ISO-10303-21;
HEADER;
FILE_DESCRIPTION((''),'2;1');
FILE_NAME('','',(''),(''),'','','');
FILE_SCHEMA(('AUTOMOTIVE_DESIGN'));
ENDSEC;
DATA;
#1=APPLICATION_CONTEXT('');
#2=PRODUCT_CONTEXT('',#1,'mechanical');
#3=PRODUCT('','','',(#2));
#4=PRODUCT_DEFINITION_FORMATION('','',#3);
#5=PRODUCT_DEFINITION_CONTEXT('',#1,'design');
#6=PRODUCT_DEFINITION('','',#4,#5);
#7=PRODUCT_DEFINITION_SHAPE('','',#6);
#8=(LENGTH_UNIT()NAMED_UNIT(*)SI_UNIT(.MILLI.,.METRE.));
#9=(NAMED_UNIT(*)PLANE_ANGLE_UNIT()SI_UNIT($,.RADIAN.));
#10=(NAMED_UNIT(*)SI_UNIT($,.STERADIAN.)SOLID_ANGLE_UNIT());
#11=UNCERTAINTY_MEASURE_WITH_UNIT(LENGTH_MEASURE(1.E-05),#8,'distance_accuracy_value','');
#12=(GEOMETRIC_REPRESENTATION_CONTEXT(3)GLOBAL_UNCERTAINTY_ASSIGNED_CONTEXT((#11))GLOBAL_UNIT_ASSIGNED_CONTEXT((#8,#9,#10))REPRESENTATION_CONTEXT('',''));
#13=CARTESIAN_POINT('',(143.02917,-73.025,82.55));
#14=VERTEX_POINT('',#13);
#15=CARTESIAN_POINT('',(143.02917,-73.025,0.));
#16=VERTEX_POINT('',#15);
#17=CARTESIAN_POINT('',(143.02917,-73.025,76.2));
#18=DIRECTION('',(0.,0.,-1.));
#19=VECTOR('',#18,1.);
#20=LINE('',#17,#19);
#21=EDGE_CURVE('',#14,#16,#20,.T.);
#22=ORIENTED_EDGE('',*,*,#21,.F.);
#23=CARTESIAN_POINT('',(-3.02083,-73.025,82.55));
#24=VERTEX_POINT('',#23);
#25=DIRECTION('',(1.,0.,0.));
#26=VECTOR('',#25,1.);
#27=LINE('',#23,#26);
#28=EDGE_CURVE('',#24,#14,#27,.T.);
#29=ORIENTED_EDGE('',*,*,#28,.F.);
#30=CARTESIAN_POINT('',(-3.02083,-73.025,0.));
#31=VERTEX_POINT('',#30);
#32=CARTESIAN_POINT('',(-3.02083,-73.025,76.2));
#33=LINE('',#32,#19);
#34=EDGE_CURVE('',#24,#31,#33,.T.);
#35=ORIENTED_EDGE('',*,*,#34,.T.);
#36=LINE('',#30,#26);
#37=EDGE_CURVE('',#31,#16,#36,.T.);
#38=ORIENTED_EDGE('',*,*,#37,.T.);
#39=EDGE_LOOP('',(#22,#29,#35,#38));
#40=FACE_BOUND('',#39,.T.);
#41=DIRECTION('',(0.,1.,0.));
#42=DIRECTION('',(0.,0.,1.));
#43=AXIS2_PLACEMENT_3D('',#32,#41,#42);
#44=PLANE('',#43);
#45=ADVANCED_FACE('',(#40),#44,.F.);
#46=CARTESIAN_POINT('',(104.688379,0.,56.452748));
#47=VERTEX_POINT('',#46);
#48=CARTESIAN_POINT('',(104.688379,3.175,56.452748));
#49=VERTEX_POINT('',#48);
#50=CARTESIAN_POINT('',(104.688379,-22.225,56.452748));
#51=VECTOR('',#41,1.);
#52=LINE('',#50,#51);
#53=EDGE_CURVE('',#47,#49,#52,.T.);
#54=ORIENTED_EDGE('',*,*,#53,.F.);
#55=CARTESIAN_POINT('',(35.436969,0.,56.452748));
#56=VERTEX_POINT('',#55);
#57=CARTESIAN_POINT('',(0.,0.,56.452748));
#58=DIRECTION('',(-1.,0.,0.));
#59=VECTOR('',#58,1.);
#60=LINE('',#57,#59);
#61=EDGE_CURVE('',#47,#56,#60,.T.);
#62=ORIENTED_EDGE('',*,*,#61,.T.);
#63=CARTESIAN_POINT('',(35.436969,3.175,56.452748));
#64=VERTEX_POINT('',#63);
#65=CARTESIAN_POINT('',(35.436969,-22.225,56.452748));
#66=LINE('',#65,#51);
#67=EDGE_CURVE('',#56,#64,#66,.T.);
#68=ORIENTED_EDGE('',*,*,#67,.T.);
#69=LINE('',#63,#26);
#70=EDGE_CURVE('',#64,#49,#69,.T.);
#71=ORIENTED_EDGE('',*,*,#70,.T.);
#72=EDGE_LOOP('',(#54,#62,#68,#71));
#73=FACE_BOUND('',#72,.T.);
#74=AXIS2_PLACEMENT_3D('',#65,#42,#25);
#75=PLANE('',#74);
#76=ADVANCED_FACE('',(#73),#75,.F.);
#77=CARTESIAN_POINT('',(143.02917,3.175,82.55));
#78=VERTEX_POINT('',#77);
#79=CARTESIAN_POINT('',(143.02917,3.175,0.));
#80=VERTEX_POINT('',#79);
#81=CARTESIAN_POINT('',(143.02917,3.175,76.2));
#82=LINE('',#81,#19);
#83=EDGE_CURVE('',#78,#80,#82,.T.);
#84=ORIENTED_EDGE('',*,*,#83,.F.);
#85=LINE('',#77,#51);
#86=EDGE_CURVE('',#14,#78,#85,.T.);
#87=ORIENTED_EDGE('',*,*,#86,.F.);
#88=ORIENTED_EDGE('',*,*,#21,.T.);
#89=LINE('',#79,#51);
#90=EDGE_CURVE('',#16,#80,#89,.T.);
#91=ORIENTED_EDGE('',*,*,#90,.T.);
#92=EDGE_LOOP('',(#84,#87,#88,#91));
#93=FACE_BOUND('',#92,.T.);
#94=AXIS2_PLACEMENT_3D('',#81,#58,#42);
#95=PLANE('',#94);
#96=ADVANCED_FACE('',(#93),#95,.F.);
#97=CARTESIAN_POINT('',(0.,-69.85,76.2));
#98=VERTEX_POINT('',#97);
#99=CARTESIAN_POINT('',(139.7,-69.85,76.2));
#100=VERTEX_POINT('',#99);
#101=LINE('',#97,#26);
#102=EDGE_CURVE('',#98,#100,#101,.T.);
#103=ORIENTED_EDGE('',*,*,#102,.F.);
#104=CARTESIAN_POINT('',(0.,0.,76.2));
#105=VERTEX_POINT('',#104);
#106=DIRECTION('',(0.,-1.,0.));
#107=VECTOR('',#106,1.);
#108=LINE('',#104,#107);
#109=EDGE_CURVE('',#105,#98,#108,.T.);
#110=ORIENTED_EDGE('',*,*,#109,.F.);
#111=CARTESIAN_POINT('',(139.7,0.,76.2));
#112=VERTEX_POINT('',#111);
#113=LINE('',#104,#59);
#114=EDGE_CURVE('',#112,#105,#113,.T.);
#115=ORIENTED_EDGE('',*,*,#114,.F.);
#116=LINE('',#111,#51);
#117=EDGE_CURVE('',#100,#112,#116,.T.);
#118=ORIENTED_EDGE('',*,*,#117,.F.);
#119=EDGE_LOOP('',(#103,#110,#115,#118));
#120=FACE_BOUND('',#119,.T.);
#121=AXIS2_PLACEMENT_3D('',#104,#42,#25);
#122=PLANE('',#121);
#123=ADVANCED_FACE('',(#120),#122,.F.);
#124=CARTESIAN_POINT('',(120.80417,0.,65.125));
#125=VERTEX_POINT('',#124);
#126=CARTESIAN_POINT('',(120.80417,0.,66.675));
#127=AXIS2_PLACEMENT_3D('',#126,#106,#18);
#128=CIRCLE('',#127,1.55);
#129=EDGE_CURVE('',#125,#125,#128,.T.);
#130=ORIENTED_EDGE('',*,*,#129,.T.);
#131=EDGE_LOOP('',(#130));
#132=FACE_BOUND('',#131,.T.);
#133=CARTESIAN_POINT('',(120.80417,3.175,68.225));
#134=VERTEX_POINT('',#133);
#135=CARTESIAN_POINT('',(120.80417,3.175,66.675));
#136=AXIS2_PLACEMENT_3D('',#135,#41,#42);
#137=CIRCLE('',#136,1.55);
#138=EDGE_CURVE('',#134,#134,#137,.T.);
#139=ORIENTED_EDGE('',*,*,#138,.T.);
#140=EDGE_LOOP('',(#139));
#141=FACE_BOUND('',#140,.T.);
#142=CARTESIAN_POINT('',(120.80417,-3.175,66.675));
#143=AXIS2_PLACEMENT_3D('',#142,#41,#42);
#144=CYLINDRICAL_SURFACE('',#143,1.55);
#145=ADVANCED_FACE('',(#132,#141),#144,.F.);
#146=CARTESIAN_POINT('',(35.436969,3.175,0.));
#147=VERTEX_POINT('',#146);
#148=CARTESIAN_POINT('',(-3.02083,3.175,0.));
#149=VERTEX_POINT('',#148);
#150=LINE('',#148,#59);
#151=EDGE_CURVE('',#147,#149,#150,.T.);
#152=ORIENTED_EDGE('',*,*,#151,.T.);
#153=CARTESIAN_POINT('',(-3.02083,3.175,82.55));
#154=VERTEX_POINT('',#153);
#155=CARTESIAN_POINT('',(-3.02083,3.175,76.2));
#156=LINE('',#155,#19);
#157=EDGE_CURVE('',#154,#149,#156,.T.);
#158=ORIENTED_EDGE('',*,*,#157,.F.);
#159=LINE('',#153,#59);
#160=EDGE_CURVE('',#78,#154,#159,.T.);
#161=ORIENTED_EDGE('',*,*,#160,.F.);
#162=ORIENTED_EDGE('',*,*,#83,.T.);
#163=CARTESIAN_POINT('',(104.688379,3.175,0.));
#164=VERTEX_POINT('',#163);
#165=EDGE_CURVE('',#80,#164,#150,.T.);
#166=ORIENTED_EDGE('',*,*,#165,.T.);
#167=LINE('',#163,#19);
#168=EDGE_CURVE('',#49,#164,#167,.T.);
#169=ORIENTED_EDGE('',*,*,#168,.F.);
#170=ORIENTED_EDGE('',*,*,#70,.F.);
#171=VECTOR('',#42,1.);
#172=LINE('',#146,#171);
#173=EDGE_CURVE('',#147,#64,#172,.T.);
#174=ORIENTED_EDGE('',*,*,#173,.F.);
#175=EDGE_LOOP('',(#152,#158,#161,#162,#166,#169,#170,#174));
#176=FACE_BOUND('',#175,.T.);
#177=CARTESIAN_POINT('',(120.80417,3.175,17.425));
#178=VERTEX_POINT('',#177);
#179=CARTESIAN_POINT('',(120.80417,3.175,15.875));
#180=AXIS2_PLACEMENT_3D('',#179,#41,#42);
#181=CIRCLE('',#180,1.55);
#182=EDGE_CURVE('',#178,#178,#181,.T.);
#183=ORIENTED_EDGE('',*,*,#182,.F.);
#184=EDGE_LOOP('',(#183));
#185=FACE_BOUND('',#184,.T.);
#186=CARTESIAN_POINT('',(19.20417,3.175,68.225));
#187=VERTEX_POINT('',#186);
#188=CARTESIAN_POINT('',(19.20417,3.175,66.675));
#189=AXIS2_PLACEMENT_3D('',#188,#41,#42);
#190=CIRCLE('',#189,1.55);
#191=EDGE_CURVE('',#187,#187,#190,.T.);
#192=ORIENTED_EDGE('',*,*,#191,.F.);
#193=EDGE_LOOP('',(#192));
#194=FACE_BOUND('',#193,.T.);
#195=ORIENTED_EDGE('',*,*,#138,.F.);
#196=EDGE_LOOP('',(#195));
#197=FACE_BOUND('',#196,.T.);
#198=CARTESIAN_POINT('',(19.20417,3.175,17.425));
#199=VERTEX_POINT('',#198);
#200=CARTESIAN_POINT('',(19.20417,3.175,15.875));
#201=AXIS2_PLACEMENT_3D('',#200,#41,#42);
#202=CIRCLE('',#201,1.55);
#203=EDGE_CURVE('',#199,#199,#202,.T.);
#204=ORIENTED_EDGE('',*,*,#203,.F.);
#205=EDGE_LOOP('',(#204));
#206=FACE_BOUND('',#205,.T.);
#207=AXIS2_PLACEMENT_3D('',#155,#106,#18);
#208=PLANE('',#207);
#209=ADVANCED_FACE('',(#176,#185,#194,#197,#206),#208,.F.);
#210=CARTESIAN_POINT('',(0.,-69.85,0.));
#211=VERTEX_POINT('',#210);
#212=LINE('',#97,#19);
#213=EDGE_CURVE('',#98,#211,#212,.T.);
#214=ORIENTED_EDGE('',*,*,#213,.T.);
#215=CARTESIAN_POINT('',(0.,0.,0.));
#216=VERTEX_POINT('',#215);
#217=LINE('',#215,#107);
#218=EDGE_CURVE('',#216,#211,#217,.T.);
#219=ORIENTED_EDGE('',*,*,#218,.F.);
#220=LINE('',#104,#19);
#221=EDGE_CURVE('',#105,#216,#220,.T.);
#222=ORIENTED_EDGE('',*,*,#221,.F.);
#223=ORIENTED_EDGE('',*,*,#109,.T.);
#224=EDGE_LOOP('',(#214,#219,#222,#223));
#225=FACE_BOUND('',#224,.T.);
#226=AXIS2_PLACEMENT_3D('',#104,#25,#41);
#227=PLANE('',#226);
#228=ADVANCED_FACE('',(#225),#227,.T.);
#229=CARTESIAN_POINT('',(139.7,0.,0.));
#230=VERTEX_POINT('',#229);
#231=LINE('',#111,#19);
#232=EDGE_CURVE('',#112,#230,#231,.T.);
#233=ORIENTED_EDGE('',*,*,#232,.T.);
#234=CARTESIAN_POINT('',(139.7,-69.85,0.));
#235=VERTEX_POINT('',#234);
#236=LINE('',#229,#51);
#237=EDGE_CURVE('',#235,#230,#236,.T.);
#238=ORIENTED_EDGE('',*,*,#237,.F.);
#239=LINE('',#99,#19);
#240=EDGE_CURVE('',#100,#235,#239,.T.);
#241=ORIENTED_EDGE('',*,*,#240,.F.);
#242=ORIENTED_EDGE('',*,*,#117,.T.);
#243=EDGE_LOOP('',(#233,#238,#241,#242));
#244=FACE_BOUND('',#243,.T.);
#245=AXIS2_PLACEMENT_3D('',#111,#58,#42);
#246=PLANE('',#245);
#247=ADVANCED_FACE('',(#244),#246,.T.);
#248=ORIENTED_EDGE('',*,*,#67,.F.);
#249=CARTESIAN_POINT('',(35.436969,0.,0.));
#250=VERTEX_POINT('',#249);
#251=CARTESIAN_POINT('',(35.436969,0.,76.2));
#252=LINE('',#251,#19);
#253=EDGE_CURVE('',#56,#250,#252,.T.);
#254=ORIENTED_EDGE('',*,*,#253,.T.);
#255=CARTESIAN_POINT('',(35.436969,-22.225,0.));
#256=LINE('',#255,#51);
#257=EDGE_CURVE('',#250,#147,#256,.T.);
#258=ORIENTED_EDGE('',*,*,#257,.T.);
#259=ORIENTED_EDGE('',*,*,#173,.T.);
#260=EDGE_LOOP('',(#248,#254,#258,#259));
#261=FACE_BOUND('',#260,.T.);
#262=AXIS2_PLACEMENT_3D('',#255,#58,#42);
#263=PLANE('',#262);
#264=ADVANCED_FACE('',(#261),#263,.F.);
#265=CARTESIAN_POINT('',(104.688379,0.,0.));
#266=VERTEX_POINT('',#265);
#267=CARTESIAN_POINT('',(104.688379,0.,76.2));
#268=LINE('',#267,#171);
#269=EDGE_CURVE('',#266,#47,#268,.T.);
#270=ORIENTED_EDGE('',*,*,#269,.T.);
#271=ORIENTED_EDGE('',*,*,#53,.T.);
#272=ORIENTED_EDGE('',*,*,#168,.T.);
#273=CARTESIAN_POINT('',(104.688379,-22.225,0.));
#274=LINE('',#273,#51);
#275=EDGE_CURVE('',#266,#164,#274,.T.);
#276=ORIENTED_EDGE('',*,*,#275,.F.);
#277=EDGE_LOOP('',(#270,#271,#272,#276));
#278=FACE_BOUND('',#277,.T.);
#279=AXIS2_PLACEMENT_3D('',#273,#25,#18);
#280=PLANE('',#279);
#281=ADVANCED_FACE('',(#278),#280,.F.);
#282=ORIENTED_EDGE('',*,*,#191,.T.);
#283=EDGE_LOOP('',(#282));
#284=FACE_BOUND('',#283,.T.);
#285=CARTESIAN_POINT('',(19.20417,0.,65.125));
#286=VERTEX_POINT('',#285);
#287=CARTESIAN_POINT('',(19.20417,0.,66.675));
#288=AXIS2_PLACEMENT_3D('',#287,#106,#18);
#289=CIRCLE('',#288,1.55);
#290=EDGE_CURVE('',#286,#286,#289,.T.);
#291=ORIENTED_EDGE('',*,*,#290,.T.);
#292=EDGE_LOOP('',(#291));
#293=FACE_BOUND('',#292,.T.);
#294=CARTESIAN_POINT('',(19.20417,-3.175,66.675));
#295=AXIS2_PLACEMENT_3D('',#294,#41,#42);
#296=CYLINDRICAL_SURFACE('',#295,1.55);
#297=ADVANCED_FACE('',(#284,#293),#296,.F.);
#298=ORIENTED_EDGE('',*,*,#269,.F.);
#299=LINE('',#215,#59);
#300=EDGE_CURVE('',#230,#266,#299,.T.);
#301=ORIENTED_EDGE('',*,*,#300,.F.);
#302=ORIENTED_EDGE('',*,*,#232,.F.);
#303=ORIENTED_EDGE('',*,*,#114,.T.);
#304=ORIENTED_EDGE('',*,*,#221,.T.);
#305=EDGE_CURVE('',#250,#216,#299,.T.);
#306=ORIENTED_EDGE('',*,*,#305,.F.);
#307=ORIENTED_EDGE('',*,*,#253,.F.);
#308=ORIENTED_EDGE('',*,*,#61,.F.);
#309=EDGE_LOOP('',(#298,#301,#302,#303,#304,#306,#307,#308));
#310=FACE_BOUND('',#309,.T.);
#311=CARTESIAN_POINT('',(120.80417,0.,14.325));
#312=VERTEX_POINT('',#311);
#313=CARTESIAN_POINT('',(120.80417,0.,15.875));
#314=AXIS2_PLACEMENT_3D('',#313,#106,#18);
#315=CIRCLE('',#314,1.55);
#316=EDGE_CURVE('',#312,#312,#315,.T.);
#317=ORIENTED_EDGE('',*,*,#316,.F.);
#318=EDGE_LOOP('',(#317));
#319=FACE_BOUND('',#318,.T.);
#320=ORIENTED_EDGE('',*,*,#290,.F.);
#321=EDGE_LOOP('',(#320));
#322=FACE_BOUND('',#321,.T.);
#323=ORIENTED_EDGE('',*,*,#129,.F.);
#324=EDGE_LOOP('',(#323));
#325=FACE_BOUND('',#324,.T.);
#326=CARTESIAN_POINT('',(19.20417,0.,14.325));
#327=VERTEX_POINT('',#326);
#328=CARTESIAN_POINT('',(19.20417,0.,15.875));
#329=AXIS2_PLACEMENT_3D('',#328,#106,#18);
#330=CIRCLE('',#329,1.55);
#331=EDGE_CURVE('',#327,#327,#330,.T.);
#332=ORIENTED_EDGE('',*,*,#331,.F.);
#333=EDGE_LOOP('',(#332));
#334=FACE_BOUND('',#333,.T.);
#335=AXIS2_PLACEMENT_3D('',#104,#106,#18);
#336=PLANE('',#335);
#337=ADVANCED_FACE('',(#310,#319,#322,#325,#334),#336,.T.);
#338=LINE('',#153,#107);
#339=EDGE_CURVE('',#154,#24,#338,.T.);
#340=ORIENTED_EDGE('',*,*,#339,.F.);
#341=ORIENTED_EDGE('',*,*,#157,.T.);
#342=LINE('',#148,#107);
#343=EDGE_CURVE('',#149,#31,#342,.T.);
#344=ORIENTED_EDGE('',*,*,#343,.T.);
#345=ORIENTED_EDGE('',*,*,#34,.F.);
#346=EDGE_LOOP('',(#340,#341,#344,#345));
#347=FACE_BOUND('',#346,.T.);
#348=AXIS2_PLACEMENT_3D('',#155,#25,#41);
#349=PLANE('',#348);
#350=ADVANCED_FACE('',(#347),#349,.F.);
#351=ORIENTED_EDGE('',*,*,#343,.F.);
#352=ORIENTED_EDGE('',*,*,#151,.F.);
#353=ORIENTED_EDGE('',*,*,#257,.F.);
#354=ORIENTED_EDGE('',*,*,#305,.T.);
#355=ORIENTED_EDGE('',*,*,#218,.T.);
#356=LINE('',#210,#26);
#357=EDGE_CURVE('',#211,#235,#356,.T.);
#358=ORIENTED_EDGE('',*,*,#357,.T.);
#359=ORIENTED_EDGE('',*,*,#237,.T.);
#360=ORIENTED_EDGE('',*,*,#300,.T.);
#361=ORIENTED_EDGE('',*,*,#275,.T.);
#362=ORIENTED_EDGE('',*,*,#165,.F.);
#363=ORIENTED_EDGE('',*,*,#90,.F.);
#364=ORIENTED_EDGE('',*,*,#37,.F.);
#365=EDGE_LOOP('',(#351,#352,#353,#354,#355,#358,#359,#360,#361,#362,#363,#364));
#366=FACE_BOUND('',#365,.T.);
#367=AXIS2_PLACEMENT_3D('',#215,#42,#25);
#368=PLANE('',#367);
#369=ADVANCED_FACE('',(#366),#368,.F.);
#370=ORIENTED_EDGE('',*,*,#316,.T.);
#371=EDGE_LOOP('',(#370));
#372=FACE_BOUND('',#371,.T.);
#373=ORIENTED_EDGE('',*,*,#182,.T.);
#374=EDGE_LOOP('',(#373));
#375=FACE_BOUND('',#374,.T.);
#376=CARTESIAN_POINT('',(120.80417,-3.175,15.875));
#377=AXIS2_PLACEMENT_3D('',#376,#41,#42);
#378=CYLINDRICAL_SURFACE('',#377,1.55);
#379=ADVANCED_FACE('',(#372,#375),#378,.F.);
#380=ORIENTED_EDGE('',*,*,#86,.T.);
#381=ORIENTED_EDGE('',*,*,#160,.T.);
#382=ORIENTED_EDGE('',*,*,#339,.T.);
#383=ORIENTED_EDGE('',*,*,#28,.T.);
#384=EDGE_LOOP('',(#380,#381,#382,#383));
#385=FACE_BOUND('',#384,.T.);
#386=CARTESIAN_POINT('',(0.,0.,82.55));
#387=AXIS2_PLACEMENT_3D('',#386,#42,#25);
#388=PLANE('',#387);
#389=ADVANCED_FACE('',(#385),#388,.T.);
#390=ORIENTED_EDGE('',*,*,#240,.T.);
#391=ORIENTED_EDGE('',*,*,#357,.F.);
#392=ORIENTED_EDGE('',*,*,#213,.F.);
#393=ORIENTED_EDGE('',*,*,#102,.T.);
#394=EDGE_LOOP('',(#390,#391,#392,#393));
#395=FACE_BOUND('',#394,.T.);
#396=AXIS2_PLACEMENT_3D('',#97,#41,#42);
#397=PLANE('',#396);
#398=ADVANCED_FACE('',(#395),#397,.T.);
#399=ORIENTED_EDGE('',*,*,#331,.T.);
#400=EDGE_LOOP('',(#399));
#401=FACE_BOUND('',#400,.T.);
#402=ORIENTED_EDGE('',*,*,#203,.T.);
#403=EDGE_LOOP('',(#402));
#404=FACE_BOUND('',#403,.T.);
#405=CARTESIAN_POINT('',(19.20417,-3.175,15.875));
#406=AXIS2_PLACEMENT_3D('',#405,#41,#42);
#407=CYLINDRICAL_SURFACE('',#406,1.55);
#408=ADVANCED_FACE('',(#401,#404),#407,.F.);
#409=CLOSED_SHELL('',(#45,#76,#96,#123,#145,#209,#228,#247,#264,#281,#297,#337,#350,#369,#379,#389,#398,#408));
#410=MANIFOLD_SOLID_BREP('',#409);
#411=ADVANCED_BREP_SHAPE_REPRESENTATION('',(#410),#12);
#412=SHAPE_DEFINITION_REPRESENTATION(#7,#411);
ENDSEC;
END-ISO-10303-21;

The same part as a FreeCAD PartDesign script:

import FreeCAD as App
import Part
import Sketcher

V = App.Vector
Q = App.Units.Quantity


def add_polygon(sketch, points):
    """Adds a closed chain of lines whose ends are joined by coincident constraints."""
    first, n = sketch.GeometryCount, len(points)
    for a, b in zip(points, points[1:] + points[:1]):
        sketch.addGeometry(Part.LineSegment(App.Vector(*a, 0), App.Vector(*b, 0)), False)
    for i in range(n):
        sketch.addConstraint(Sketcher.Constraint("Coincident", first + i, 2, first + (i + 1) % n, 1))

doc = App.newDocument("Part")
body = doc.addObject("PartDesign::Body", "Body")

# Sketch on XY plane
sketch1 = doc.addObject("Sketcher::SketchObject", "Sketch")
body.addObject(sketch1)
sketch1.AttachmentSupport = (doc.XY_Plane, [""])
sketch1.MapMode = "FlatFace"
add_polygon(sketch1, [(-3, 3), (-3, -73), (143, -73), (143, 3)])  # lines 0-3
add_polygon(sketch1, [(140, -70), (0, -70), (0, 0), (140, 0)])  # lines 4-7
sketch1.addConstraint(Sketcher.Constraint("Vertical", 0))
sketch1.addConstraint(Sketcher.Constraint("Horizontal", 1))
sketch1.addConstraint(Sketcher.Constraint("Vertical", 2))
sketch1.addConstraint(Sketcher.Constraint("Horizontal", 3))
sketch1.addConstraint(Sketcher.Constraint("Horizontal", 4))
sketch1.addConstraint(Sketcher.Constraint("Vertical", 5))
sketch1.addConstraint(Sketcher.Constraint("Horizontal", 6))
sketch1.addConstraint(Sketcher.Constraint("Vertical", 7))
sketch1.addConstraint(Sketcher.Constraint("Coincident", 5, 2, -1, 1))
sketch1.addConstraint(Sketcher.Constraint("DistanceY", 0, 2, 0, 1, Q("3 in")))
sketch1.addConstraint(Sketcher.Constraint("DistanceX", 4, 2, 4, 1, Q("5.5 in")))
sketch1.addConstraint(Sketcher.Constraint("DistanceX", 1, 1, 1, 2, Q("5.75 in")))
sketch1.addConstraint(Sketcher.Constraint("DistanceY", 5, 1, 5, 2, Q("2.75 in")))
sketch1.addConstraint(Sketcher.Constraint("DistanceY", 0, 2, -1, 1, Q("2.875 in")))
sketch1.addConstraint(Sketcher.Constraint("DistanceX", 0, 2, -1, 1, Q("3.02083 mm")))
pad1 = doc.addObject("PartDesign::Pad", "Pad")
body.addObject(pad1)
pad1.Profile = sketch1
pad1.Length = Q("3 in")

# Sketch on XY plane
sketch2 = doc.addObject("Sketcher::SketchObject", "Sketch001")
body.addObject(sketch2)
sketch2.AttachmentSupport = (doc.XY_Plane, [""])
sketch2.MapMode = "FlatFace"
sketch2.AttachmentOffset = App.Placement(V(0, 0, 3 * 25.4), App.Rotation())
add_polygon(sketch2, [(-3, 3), (-3, -73), (143, -73), (143, 3)])  # lines 0-3
sketch2.addConstraint(Sketcher.Constraint("Vertical", 0))
sketch2.addConstraint(Sketcher.Constraint("Horizontal", 1))
sketch2.addConstraint(Sketcher.Constraint("Vertical", 2))
sketch2.addConstraint(Sketcher.Constraint("Horizontal", 3))
sketch2.addConstraint(Sketcher.Constraint("DistanceY", 0, 2, 0, 1, Q("3 in")))
sketch2.addConstraint(Sketcher.Constraint("DistanceX", 1, 1, 1, 2, Q("5.75 in")))
sketch2.addConstraint(Sketcher.Constraint("DistanceY", 0, 2, -1, 1, Q("2.875 in")))
sketch2.addConstraint(Sketcher.Constraint("DistanceX", 0, 2, -1, 1, Q("3.02083 mm")))
pad2 = doc.addObject("PartDesign::Pad", "Pad001")
body.addObject(pad2)
pad2.Profile = sketch2
pad2.Length = Q("0.25 in")

# Sketch on XZ plane
sketch3 = doc.addObject("Sketcher::SketchObject", "Sketch002")
body.addObject(sketch3)
sketch3.AttachmentSupport = (doc.XZ_Plane, [""])
sketch3.MapMode = "FlatFace"
sketch3.AttachmentOffset = App.Placement(V(0, 0, -0.125 * 25.4), App.Rotation())
sketch3.addGeometry(Part.Circle(V(19.2, 15.9, 0), V(0, 0, 1), 1.6), False)
sketch3.addGeometry(Part.Circle(V(120.8, 15.9, 0), V(0, 0, 1), 1.6), False)
sketch3.addGeometry(Part.Circle(V(120.8, 66.7, 0), V(0, 0, 1), 1.6), False)
sketch3.addGeometry(Part.Circle(V(19.2, 66.7, 0), V(0, 0, 1), 1.6), False)
sketch3.addConstraint(Sketcher.Constraint("Equal", 0, 1))
sketch3.addConstraint(Sketcher.Constraint("Equal", 1, 2))
sketch3.addConstraint(Sketcher.Constraint("Equal", 2, 3))
sketch3.addConstraint(Sketcher.Constraint("Horizontal", 0, 3, 1, 3))
sketch3.addConstraint(Sketcher.Constraint("Horizontal", 2, 3, 3, 3))
sketch3.addConstraint(Sketcher.Constraint("Vertical", 1, 3, 2, 3))
sketch3.addConstraint(Sketcher.Constraint("Vertical", 0, 3, 3, 3))
sketch3.addConstraint(Sketcher.Constraint("DistanceX", 0, 3, 1, 3, Q("4 in")))
sketch3.addConstraint(Sketcher.Constraint("DistanceY", 1, 3, 2, 3, Q("2 in")))
sketch3.addConstraint(Sketcher.Constraint("Diameter", 0, Q("3.1 mm")))
sketch3.addConstraint(Sketcher.Constraint("DistanceY", -1, 1, 0, 3, Q("0.625 in")))
sketch3.addConstraint(Sketcher.Constraint("DistanceX", -1, 1, 0, 3, Q("19.20417 mm")))
pocket1 = doc.addObject("PartDesign::Pocket", "Pocket")
body.addObject(pocket1)
pocket1.Profile = sketch3
pocket1.Length = Q("0.25 in")
pocket1.Reversed = True

# Sketch on XZ plane
sketch4 = doc.addObject("Sketcher::SketchObject", "Sketch003")
body.addObject(sketch4)
sketch4.AttachmentSupport = (doc.XZ_Plane, [""])
sketch4.MapMode = "FlatFace"
sketch4.AttachmentOffset = App.Placement(V(0, 0, -0.125 * 25.4), App.Rotation())
add_polygon(sketch4, [(35, 0), (35, 56), (105, 56), (105, 0)])  # lines 0-3
sketch4.addConstraint(Sketcher.Constraint("Vertical", 0))
sketch4.addConstraint(Sketcher.Constraint("Horizontal", 1))
sketch4.addConstraint(Sketcher.Constraint("Vertical", 2))
sketch4.addConstraint(Sketcher.Constraint("Horizontal", 3))
sketch4.addConstraint(Sketcher.Constraint("PointOnObject", 2, 2, -1))
sketch4.addConstraint(Sketcher.Constraint("DistanceX", 1, 1, 1, 2, Q("69.25141 mm")))
sketch4.addConstraint(Sketcher.Constraint("DistanceY", 0, 1, 0, 2, Q("56.452748 mm")))
sketch4.addConstraint(Sketcher.Constraint("DistanceX", -1, 1, 0, 2, Q("35.436969 mm")))
pocket2 = doc.addObject("PartDesign::Pocket", "Pocket001")
body.addObject(pocket2)
pocket2.Profile = sketch4
pocket2.Length = Q("1 in")
pocket2.Reversed = True

doc.recompute()
